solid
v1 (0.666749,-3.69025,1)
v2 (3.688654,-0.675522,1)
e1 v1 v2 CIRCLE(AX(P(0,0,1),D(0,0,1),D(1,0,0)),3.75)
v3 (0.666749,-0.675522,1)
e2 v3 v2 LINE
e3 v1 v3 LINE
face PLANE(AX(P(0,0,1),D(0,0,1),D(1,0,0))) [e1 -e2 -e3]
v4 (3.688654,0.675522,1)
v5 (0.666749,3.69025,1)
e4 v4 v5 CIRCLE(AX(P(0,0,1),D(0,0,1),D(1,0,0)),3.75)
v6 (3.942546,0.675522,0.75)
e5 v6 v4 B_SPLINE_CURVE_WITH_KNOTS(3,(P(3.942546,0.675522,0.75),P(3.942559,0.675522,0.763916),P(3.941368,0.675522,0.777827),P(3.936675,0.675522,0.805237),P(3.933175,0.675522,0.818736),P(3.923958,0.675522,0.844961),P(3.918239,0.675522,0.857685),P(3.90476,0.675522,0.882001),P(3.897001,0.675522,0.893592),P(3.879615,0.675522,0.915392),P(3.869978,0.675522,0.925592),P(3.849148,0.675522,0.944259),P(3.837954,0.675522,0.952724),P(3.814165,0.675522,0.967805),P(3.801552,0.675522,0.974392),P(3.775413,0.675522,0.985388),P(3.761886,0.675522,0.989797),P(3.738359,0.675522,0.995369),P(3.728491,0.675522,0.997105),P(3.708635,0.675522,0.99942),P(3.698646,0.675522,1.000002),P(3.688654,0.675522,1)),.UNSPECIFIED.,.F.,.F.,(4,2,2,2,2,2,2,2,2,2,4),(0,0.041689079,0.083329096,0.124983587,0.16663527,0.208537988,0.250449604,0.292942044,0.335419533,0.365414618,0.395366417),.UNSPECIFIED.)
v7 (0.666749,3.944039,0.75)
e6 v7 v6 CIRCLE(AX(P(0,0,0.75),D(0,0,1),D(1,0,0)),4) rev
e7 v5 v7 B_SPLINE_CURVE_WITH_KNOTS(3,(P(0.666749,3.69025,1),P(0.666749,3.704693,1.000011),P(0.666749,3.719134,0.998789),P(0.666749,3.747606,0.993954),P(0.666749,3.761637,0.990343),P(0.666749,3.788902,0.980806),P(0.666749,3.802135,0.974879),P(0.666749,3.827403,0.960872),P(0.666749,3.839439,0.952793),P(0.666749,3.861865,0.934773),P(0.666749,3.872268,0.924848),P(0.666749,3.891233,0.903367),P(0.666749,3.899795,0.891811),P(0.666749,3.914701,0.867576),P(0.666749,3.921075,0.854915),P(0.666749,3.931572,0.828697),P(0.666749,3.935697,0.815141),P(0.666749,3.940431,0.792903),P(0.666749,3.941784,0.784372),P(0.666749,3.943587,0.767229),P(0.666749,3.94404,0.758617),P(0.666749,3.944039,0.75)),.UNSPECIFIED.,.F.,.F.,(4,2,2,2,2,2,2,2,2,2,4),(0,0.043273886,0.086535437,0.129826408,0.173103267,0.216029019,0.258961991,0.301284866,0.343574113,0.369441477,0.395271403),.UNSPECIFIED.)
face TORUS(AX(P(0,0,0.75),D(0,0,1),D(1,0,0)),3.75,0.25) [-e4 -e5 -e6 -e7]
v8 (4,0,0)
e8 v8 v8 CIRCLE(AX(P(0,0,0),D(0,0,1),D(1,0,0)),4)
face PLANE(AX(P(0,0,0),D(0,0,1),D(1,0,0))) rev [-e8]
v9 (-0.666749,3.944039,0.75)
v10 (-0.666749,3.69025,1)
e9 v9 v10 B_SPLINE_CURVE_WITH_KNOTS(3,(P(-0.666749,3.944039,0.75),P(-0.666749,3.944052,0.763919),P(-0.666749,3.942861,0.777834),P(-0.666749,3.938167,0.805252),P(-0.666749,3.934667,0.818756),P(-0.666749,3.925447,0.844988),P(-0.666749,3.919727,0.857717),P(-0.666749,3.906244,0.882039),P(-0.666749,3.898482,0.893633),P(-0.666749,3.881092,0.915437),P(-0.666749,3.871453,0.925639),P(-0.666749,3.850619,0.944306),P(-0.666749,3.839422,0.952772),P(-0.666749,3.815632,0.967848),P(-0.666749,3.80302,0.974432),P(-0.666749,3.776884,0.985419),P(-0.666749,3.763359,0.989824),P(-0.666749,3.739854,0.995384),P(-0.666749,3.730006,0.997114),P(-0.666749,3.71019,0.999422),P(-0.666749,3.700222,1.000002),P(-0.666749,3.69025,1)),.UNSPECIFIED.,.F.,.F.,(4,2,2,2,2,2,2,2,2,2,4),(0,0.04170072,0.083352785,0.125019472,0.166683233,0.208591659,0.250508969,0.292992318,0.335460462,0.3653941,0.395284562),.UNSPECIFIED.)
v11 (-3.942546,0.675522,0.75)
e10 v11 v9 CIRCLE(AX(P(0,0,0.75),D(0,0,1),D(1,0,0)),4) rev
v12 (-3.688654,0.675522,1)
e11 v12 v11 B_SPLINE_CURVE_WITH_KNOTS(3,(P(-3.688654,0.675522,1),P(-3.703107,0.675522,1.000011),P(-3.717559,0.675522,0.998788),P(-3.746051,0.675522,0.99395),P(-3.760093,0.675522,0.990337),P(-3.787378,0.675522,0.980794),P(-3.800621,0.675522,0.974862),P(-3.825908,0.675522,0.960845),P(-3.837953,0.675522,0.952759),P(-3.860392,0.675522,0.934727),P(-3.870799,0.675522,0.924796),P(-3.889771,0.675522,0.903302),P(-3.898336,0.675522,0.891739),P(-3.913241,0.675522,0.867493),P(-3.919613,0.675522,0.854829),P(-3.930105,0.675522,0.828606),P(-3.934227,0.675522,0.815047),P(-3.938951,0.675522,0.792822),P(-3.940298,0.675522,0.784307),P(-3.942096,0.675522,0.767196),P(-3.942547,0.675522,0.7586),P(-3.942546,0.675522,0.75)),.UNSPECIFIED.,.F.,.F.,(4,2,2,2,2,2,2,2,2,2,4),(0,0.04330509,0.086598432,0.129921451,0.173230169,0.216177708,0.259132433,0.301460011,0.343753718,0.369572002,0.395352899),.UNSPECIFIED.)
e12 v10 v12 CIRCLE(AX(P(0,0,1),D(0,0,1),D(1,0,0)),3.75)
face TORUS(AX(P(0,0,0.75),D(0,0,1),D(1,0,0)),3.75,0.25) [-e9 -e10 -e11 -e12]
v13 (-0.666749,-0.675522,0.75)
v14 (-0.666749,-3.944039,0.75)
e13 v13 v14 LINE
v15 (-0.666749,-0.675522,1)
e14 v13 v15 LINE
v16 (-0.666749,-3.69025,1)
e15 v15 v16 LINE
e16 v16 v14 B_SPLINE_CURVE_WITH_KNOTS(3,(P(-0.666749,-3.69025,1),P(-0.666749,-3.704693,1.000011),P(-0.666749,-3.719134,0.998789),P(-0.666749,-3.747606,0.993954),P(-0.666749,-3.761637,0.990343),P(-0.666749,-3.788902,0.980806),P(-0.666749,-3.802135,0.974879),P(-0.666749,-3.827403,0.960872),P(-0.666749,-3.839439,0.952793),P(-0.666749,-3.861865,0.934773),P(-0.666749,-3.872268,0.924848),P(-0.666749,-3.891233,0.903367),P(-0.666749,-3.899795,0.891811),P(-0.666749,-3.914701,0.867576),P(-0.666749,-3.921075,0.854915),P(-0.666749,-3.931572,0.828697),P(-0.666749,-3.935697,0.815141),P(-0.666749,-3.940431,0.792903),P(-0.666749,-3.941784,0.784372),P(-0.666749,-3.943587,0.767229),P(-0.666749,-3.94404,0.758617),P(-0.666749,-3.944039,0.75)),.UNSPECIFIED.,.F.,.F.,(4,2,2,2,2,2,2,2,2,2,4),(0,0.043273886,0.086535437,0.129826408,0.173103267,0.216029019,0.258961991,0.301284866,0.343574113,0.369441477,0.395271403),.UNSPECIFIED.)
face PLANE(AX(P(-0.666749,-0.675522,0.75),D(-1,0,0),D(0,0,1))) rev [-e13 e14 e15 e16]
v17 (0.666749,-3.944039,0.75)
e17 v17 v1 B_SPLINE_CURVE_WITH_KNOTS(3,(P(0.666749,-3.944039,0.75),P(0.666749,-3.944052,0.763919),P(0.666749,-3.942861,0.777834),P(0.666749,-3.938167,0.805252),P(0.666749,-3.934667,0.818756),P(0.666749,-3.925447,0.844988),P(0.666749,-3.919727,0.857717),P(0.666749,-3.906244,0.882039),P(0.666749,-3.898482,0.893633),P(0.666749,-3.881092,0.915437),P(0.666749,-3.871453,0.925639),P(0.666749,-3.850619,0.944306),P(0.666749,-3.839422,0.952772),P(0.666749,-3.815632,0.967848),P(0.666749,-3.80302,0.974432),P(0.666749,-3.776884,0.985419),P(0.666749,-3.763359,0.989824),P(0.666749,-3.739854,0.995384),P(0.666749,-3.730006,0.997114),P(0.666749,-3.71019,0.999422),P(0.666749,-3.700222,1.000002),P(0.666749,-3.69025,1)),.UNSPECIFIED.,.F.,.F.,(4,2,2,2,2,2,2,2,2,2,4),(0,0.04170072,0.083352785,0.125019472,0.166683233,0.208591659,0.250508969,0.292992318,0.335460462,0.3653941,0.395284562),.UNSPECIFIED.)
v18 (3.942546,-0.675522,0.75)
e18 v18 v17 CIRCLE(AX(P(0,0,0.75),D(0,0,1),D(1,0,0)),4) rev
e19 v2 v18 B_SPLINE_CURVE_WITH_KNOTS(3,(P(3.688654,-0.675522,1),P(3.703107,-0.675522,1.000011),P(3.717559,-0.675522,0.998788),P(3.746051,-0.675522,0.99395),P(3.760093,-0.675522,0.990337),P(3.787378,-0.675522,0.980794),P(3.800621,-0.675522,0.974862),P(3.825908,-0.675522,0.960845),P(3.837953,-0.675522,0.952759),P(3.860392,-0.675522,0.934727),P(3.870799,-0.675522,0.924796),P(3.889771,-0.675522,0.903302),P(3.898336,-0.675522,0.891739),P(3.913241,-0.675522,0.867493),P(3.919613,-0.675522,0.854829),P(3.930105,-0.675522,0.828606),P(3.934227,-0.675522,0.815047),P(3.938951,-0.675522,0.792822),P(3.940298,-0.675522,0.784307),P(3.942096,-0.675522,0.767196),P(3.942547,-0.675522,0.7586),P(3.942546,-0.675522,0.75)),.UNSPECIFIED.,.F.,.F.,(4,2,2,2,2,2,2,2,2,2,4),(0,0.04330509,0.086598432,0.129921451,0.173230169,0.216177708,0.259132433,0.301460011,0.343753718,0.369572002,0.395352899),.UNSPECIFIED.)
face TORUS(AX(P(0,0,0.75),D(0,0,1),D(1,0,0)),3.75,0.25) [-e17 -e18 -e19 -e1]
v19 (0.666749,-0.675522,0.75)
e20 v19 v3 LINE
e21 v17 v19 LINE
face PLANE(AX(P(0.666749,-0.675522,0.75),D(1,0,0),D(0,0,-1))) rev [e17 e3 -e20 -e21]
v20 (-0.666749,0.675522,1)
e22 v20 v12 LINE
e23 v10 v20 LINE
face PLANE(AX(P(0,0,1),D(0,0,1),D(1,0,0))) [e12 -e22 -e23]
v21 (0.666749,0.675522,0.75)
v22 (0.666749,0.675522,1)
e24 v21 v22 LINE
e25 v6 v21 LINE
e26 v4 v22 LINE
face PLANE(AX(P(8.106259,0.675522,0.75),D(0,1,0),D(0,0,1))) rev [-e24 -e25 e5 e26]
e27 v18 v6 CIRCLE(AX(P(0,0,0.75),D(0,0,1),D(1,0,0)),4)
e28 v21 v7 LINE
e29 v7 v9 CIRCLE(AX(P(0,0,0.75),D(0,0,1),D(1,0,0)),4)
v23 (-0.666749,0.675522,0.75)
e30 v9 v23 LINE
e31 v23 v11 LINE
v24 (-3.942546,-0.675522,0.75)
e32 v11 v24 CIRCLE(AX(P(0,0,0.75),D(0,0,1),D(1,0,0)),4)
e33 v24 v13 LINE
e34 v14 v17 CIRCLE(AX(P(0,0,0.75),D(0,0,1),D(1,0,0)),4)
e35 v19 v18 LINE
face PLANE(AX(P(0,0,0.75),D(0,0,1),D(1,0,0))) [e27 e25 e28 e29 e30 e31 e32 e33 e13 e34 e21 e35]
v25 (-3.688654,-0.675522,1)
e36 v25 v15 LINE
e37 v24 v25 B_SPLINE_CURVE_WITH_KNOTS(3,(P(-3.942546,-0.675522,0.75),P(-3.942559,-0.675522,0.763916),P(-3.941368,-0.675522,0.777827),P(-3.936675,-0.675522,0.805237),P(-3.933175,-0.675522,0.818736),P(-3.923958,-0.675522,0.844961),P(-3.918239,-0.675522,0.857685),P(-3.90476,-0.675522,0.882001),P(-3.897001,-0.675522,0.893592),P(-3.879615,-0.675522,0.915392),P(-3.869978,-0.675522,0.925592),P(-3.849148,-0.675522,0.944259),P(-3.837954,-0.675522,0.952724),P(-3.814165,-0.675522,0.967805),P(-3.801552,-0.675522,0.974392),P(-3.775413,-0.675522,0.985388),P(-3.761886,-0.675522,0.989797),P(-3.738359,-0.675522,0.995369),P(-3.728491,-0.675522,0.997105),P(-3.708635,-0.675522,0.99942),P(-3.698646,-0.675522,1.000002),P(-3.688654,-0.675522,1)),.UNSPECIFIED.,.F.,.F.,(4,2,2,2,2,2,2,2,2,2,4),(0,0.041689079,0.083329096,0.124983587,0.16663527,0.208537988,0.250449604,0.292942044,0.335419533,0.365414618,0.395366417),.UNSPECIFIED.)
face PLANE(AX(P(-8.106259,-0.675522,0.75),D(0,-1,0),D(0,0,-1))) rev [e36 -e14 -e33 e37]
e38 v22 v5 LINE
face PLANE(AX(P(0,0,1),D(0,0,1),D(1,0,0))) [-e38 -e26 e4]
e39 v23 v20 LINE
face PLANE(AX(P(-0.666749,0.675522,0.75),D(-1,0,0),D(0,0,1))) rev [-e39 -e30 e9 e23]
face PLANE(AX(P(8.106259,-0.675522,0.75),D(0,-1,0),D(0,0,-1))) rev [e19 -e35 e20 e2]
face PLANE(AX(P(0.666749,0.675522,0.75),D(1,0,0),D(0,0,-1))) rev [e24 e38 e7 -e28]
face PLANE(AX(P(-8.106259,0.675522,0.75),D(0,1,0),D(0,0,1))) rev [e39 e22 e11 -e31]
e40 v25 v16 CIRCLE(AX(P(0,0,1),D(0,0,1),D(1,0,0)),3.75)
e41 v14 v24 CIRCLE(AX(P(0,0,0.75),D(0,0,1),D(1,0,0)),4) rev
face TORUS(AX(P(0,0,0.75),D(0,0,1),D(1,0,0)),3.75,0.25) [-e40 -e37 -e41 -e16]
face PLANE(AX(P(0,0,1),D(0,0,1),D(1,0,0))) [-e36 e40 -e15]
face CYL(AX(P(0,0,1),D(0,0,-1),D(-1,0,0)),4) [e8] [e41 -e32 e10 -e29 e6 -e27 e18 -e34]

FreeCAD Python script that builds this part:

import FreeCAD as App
import Part
import Sketcher
Q = App.Units.Quantity


def edges_at(feature, points):
    """Names of the edges that pass closest to the given points."""
    edges = feature.Shape.Edges
    near = lambda p: min(range(len(edges)), key=lambda i: edges[i].distToShape(Part.Vertex(*p))[0])
    return sorted({f"Edge{near(p) + 1}" for p in points})


def add_polygon(sketch, points):
    """Adds a closed chain of lines whose ends are joined by coincident constraints."""
    first, n = sketch.GeometryCount, len(points)
    for a, b in zip(points, points[1:] + points[:1]):
        sketch.addGeometry(Part.LineSegment(App.Vector(*a, 0), App.Vector(*b, 0)), False)
    for i in range(n):
        sketch.addConstraint(Sketcher.Constraint("Coincident", first + i, 2, first + (i + 1) % n, 1))

doc = App.newDocument("Part")
body = doc.addObject("PartDesign::Body", "Body")

# Sketch on XY plane
sketch1 = doc.addObject("Sketcher::SketchObject", "Sketch")
body.addObject(sketch1)
sketch1.AttachmentSupport = (doc.XY_Plane, [""])
sketch1.MapMode = "FlatFace"
sketch1.addGeometry(Part.Circle(App.Vector(0, 0, 0), App.Vector(0, 0, 1), 4), False)
sketch1.addConstraint([
    Sketcher.Constraint("Coincident", 0, 3, -1, 1),
    Sketcher.Constraint("Diameter", 0, Q("8 mm")),
])
pad1 = doc.addObject("PartDesign::Pad", "Pad")
body.addObject(pad1)
pad1.Profile = sketch1
pad1.Length = 1

# Sketch on XY plane
sketch2 = doc.addObject("Sketcher::SketchObject", "Sketch001")
body.addObject(sketch2)
sketch2.AttachmentSupport = (doc.XY_Plane, [""])
sketch2.MapMode = "FlatFace"
sketch2.AttachmentOffset = App.Placement(App.Vector(0, 0, 1), App.Rotation())
add_polygon(sketch2, [(-0.7, 0.7), (-8.1, 0.7), (-8.1, -0.7), (-0.7, -0.7), (-0.7, -8.5), (0.7, -8.5), (0.7, -0.7), (8.1, -0.7), (8.1, 0.7), (0.7, 0.7), (0.7, 8.5), (-0.7, 8.5)])  # lines 0-11
sketch2.addConstraint([
    Sketcher.Constraint("Horizontal", 0),
    Sketcher.Constraint("Vertical", 1),
    Sketcher.Constraint("Horizontal", 2),
    Sketcher.Constraint("Vertical", 3),
    Sketcher.Constraint("Horizontal", 4),
    Sketcher.Constraint("Vertical", 5),
    Sketcher.Constraint("Horizontal", 6),
    Sketcher.Constraint("Vertical", 7),
    Sketcher.Constraint("Horizontal", 8),
    Sketcher.Constraint("Vertical", 9),
    Sketcher.Constraint("Horizontal", 10),
    Sketcher.Constraint("Vertical", 11),
    Sketcher.Constraint("Symmetric", 0, 2, 6, 2, -1, 1),
    Sketcher.Constraint("Symmetric", 2, 2, 8, 2, -1, 1),
    Sketcher.Constraint("Symmetric", 4, 2, 10, 2, -1, 1),
    Sketcher.Constraint("Symmetric", 2, 2, 5, 2, -2),
    Sketcher.Constraint("DistanceX", 0, 2, 0, 1, Q("7.439511 mm")),
    Sketcher.Constraint("DistanceY", 3, 2, 3, 1, Q("7.790431 mm")),
    Sketcher.Constraint("DistanceX", 4, 1, 4, 2, Q("1.333497 mm")),
    Sketcher.Constraint("DistanceY", 1, 2, 1, 1, Q("1.351043 mm")),
])
pocket1 = doc.addObject("PartDesign::Pocket", "Pocket")
body.addObject(pocket1)
pocket1.Profile = sketch2
pocket1.Length = 0.25
doc.recompute()

fillet = doc.addObject("PartDesign::Fillet", "Fillet")
body.addObject(fillet)
fillet.Base = (pocket1, edges_at(pocket1, [
    (2.825, 2.832, 1),
    (2.825, -2.832, 1),
    (-2.825, -2.832, 1),
    (-2.825, 2.832, 1),
]))
fillet.Radius = 0.25

doc.recompute()
